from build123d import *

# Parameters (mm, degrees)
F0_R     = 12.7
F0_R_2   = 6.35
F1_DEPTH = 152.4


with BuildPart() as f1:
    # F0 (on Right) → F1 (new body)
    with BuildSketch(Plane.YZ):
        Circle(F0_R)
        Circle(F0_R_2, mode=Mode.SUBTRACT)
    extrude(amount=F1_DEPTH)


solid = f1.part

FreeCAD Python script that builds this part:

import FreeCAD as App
import Part
import Sketcher

V = App.Vector
Q = App.Units.Quantity

doc = App.newDocument("Part")
params = doc.addObject("Spreadsheet::Sheet", "Params")
for row, (alias, value) in enumerate([
    ("sketch1_diameter", "1 in"),
    ("sketch1_diameter2", "0.5 in"),
    ("pad1_length", "6 in"),
], start=1):
    params.set(f"A{row}", alias)
    params.set(f"B{row}", "=" + value)
    params.setAlias(f"B{row}", alias)

body = doc.addObject("PartDesign::Body", "Body")

# Sketch on YZ plane
sketch1 = body.newObject("Sketcher::SketchObject", "Sketch")
sketch1.AttachmentSupport = (doc.getObject("YZ_Plane"), [""])
sketch1.MapMode = "FlatFace"
sketch1.addGeometry([
    Part.Circle(V(0, 0, 0), V(0, 0, 1), 13),
    Part.Circle(V(0, 0, 0), V(0, 0, 1), 6),
], False)
sketch1.addConstraint([
    Sketcher.Constraint("Coincident", 0, 3, -1, 1),
    Sketcher.Constraint("Coincident", 1, 3, -1, 1),
    Sketcher.Constraint("Diameter", 0, Q("1 in")),
    Sketcher.Constraint("Diameter", 1, Q("0.5 in")),
])
sketch1.setExpression("Constraints[2]", "Params.sketch1_diameter")
sketch1.setExpression("Constraints[3]", "Params.sketch1_diameter2")
pad1 = body.newObject("PartDesign::Pad", "Pad")
pad1.Profile = sketch1
pad1.setExpression("Length", "Params.pad1_length")

doc.recompute()
